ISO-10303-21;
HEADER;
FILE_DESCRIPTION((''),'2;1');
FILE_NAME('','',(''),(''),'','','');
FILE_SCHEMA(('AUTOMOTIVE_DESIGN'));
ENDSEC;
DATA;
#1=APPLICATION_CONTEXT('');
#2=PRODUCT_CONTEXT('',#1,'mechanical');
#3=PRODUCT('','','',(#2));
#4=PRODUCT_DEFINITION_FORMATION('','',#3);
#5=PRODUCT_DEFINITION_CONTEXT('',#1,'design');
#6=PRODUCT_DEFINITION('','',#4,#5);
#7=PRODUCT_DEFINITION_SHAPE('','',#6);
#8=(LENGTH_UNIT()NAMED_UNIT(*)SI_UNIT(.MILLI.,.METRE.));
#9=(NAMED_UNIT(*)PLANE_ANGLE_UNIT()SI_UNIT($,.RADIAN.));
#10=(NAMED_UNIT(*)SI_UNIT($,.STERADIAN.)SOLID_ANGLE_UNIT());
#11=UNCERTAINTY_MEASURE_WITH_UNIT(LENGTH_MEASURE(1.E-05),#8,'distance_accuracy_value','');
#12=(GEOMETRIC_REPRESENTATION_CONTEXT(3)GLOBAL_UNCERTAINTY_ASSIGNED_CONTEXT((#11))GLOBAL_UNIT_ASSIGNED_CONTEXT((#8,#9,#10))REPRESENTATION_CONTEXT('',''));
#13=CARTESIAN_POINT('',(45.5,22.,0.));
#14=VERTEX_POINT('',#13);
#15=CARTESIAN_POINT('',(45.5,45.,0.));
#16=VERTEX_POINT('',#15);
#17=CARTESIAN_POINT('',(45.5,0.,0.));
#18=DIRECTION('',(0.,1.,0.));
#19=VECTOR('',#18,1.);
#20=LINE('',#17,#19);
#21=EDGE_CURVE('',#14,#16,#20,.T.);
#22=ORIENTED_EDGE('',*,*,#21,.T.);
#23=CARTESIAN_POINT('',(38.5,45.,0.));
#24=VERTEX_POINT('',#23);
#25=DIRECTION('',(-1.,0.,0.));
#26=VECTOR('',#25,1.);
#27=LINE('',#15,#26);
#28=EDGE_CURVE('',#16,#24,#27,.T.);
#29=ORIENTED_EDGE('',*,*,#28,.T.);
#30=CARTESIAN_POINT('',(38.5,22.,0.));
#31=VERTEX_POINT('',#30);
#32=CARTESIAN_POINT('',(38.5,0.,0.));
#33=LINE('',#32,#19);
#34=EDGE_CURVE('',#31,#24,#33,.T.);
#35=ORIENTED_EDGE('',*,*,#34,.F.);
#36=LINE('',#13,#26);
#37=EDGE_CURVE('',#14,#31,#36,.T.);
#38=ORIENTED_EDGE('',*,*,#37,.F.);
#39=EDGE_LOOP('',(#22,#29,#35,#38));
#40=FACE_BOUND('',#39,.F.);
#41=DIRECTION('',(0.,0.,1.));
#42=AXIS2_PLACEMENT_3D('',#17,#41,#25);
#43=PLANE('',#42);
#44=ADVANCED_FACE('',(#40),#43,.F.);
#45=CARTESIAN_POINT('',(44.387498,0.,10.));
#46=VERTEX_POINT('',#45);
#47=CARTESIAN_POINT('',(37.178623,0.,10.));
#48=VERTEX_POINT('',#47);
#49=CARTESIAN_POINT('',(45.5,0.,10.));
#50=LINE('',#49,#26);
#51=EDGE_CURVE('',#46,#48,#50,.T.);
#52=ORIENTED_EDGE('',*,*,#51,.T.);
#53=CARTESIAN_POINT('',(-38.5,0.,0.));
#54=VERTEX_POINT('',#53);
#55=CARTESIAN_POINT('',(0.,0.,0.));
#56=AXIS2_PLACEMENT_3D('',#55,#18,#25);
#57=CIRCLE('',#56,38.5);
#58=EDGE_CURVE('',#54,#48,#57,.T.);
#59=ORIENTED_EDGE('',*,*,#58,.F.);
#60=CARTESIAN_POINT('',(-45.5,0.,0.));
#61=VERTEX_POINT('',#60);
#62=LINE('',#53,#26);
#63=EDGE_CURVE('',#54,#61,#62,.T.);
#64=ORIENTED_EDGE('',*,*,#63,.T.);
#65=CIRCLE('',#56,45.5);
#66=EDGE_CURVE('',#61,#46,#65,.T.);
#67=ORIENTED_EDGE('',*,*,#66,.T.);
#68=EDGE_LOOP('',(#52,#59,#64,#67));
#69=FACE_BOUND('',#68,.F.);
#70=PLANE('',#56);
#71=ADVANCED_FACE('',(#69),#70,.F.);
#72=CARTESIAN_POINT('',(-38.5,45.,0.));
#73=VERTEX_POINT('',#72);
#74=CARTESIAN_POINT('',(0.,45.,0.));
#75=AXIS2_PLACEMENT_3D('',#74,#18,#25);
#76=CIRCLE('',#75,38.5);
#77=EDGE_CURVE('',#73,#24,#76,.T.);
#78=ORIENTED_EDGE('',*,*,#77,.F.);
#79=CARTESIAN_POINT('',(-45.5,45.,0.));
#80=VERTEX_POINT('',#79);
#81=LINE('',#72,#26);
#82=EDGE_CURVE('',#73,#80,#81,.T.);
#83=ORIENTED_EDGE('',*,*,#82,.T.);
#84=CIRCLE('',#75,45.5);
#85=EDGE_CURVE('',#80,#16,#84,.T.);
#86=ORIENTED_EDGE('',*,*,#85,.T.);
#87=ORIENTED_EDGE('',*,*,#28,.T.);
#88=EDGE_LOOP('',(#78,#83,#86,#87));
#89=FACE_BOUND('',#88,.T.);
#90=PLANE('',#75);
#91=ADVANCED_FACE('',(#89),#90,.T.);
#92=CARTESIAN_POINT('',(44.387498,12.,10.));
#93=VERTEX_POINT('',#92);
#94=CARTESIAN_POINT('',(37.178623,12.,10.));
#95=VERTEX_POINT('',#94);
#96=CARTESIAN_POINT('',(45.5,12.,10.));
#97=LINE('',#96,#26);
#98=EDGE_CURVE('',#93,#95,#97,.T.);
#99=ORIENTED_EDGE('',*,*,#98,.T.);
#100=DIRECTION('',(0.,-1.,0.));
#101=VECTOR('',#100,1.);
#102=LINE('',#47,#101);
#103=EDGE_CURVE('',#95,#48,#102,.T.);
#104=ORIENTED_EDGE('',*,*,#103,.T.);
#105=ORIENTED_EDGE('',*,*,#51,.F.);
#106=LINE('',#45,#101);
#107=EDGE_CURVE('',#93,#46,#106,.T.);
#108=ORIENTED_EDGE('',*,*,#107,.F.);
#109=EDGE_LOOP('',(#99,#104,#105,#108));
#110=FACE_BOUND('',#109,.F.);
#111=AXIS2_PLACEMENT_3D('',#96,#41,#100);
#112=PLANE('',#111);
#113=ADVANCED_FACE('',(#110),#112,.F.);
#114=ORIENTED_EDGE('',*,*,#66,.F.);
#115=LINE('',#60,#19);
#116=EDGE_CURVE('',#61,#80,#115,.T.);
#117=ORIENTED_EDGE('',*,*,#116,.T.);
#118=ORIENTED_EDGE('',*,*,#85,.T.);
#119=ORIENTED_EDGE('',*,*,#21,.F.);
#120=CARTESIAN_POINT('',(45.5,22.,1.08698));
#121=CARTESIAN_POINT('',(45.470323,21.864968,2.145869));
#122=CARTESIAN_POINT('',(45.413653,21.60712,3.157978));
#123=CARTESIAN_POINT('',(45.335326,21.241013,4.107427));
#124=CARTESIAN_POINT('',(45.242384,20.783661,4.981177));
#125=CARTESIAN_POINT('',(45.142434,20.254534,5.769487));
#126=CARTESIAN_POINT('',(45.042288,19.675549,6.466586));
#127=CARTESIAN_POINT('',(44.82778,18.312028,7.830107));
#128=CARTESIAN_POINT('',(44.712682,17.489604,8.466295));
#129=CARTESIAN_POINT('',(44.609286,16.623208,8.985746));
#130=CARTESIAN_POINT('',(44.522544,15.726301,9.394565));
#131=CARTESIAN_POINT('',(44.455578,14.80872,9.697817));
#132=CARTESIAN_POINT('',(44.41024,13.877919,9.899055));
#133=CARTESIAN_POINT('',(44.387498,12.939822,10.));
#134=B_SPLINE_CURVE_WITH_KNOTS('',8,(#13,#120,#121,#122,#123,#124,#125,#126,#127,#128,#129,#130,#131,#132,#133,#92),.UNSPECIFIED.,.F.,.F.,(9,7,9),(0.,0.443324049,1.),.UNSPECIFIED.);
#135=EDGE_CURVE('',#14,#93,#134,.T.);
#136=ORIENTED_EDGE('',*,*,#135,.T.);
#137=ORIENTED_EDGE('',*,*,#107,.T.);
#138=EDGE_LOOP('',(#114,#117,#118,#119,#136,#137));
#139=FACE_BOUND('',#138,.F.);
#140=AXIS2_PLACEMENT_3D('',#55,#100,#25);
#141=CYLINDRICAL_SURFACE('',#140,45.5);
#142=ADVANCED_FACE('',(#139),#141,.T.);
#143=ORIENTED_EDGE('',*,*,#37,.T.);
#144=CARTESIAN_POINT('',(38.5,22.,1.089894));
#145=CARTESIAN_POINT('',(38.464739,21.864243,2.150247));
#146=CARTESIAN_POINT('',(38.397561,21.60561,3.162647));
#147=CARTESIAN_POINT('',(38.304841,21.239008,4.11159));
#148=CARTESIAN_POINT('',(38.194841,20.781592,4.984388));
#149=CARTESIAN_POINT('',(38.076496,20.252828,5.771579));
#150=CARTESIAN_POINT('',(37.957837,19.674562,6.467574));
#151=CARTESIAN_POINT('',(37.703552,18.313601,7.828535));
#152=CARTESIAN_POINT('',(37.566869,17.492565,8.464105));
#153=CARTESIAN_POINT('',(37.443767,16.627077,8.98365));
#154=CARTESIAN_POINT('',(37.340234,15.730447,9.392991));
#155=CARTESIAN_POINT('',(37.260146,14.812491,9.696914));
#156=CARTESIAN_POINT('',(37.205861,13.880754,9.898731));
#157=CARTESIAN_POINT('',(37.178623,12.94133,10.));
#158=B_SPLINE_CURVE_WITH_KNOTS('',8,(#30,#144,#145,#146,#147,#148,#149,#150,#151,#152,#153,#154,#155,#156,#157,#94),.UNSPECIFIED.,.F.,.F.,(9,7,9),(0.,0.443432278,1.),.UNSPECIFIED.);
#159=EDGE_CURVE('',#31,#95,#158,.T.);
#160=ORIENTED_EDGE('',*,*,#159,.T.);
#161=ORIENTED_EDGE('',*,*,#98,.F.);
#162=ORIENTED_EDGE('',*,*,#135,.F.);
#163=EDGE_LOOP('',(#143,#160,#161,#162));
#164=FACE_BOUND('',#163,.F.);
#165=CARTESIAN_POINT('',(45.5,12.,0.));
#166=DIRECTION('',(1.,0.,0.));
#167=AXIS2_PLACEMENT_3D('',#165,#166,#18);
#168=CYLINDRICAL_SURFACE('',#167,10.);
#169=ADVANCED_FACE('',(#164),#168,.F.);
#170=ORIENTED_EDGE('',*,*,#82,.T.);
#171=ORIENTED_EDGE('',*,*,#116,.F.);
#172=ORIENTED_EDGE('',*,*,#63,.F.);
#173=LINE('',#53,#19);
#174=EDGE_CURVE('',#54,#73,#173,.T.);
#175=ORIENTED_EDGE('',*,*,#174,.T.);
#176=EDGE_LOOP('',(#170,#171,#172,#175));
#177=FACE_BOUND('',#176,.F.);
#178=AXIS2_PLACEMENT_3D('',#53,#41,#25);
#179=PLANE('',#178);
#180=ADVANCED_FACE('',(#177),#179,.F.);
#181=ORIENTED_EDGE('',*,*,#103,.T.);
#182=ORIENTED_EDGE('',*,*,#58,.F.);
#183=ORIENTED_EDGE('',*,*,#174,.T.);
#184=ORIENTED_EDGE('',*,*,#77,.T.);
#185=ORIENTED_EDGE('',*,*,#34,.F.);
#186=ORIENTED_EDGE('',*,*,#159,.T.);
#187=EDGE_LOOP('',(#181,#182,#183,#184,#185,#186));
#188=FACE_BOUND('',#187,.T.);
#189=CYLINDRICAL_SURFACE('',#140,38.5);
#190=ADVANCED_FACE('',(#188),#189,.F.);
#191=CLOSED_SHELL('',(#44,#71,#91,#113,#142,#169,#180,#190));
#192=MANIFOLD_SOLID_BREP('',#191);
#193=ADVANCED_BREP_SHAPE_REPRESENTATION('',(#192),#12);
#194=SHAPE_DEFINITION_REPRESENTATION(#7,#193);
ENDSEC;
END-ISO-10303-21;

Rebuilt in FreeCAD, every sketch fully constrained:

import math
import FreeCAD as App
import Part
import Sketcher
Q = App.Units.Quantity

doc = App.newDocument("Part")
params = doc.addObject("Spreadsheet::Sheet", "Params")
for row, (alias, value) in enumerate([
    ("sketch1_radius", "45.5 mm"),
    ("sketch1_width", "7 mm"),
    ("pad1_length", "45 mm"),
    ("sketch2_radius", "10 mm"),
    ("sketch2_width", "12 mm"),
    ("pocket1_length", "50 mm"),
], start=1):
    params.set(f"A{row}", alias)
    params.set(f"B{row}", "=" + value)
    params.setAlias(f"B{row}", alias)

body = doc.addObject("PartDesign::Body", "Body")

sketch1 = doc.addObject("Sketcher::SketchObject", "Sketch")
body.addObject(sketch1)
sketch1.AttachmentSupport = (doc.XZ_Plane, [""])
sketch1.MapMode = "FlatFace"
sketch1.addGeometry([
    Part.LineSegment(App.Vector(-38, 0, 0), App.Vector(-46, 0, 0)),
    Part.ArcOfCircle(Part.Circle(App.Vector(0, 0, 0), App.Vector(0, 0, 1), 46), math.radians(0), math.radians(180)),
    Part.LineSegment(App.Vector(46, 0, 0), App.Vector(38, 0, 0)),
    Part.ArcOfCircle(Part.Circle(App.Vector(0, 0, 0), App.Vector(0, 0, 1), 38), math.radians(0), math.radians(180)),
], False)
sketch1.addConstraint([
    Sketcher.Constraint("Coincident", 0, 2, 1, 2),
    Sketcher.Constraint("Coincident", 1, 1, 2, 1),
    Sketcher.Constraint("Coincident", 2, 2, 3, 1),
    Sketcher.Constraint("Coincident", 3, 2, 0, 1),
    Sketcher.Constraint("Horizontal", 0),
    Sketcher.Constraint("Horizontal", 2),
    Sketcher.Constraint("Coincident", 1, 3, -1, 1),
    Sketcher.Constraint("Coincident", 3, 3, -1, 1),
    Sketcher.Constraint("PointOnObject", 0, 2, -1),
    Sketcher.Constraint("PointOnObject", 1, 1, -1),
    Sketcher.Constraint("Radius", 1, Q("45.5 mm")),
    Sketcher.Constraint("DistanceX", 0, 2, 0, 1, Q("7 mm")),
])
sketch1.setExpression("Constraints[10]", "Params.sketch1_radius")
sketch1.setExpression("Constraints[11]", "Params.sketch1_width")
pad1 = doc.addObject("PartDesign::Pad", "Pad")
body.addObject(pad1)
pad1.Profile = sketch1
pad1.setExpression("Length", "Params.pad1_length")
pad1.Reversed = True

sketch2 = doc.addObject("Sketcher::SketchObject", "Sketch001")
body.addObject(sketch2)
sketch2.AttachmentSupport = (doc.YZ_Plane, [""])
sketch2.MapMode = "FlatFace"
sketch2.AttachmentOffset = App.Placement(App.Vector(0, 0, 45.5), App.Rotation())
sketch2.addGeometry([
    Part.LineSegment(App.Vector(0, 0, 0), App.Vector(22, 0, 0)),
    Part.ArcOfCircle(Part.Circle(App.Vector(12, 0, 0), App.Vector(0, 0, 1), 10), math.radians(0), math.radians(90)),
    Part.LineSegment(App.Vector(12, 10, 0), App.Vector(0, 10, 0)),
    Part.LineSegment(App.Vector(0, 10, 0), App.Vector(0, 0, 0)),
], False)
sketch2.addConstraint([
    Sketcher.Constraint("Coincident", 0, 2, 1, 1),
    Sketcher.Constraint("Tangent", 1, 2, 2, 1),
    Sketcher.Constraint("Coincident", 2, 2, 3, 1),
    Sketcher.Constraint("Coincident", 3, 2, 0, 1),
    Sketcher.Constraint("Horizontal", 0),
    Sketcher.Constraint("Horizontal", 2),
    Sketcher.Constraint("Vertical", 3),
    Sketcher.Constraint("Coincident", 3, 2, -1, 1),
    Sketcher.Constraint("PointOnObject", 1, 3, -1),
    Sketcher.Constraint("Radius", 1, Q("10 mm")),
    Sketcher.Constraint("DistanceX", 2, 2, 2, 1, Q("12 mm")),
])
sketch2.setExpression("Constraints[9]", "Params.sketch2_radius")
sketch2.setExpression("Constraints[10]", "Params.sketch2_width")
pocket1 = doc.addObject("PartDesign::Pocket", "Pocket")
body.addObject(pocket1)
pocket1.Profile = sketch2
pocket1.setExpression("Length", "Params.pocket1_length")

doc.recompute()
